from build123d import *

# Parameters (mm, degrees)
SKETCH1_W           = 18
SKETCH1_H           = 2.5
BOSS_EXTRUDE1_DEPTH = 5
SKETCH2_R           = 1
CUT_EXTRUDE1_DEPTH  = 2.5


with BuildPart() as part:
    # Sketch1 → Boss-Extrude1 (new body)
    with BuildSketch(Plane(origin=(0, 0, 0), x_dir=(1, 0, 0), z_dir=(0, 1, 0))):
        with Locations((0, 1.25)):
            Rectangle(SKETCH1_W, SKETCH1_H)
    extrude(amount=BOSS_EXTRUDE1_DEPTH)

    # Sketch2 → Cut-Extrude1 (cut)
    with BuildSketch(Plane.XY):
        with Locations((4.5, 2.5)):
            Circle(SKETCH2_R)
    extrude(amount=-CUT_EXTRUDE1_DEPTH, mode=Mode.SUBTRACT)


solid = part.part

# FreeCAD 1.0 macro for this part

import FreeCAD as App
import Part
import Sketcher


def add_polygon(sketch, points):
    """Adds a closed chain of lines whose ends are joined by coincident constraints."""
    first, n = sketch.GeometryCount, len(points)
    for a, b in zip(points, points[1:] + points[:1]):
        sketch.addGeometry(Part.LineSegment(App.Vector(*a, 0), App.Vector(*b, 0)), False)
    for i in range(n):
        sketch.addConstraint(Sketcher.Constraint("Coincident", first + i, 2, first + (i + 1) % n, 1))

doc = App.newDocument("Part")
body = doc.addObject("PartDesign::Body", "Body")

# Sketch on XZ plane
sketch1 = doc.addObject("Sketcher::SketchObject", "Sketch")
body.addObject(sketch1)
sketch1.AttachmentSupport = (doc.XZ_Plane, [""])
sketch1.MapMode = "FlatFace"
add_polygon(sketch1, [(-9, -2.5), (-9, 0), (9, 0), (9, -2.5)])  # lines 0-3
sketch1.addConstraint(Sketcher.Constraint("Vertical", 0))
sketch1.addConstraint(Sketcher.Constraint("Horizontal", 1))
sketch1.addConstraint(Sketcher.Constraint("Vertical", 2))
sketch1.addConstraint(Sketcher.Constraint("Horizontal", 3))
sketch1.addConstraint(Sketcher.Constraint("Symmetric", 0, 2, 1, 2, -1, 1))
sketch1.addConstraint(Sketcher.Constraint("DistanceX", 1, 1, 1, 2, 18.0))
sketch1.addConstraint(Sketcher.Constraint("DistanceY", 0, 1, 0, 2, 2.5))
pad1 = doc.addObject("PartDesign::Pad", "Pad")
body.addObject(pad1)
pad1.Profile = sketch1
pad1.Length = 5
pad1.Reversed = True

# Sketch on XY plane
sketch2 = doc.addObject("Sketcher::SketchObject", "Sketch001")
body.addObject(sketch2)
sketch2.AttachmentSupport = (doc.XY_Plane, [""])
sketch2.MapMode = "FlatFace"
sketch2.addGeometry(Part.Circle(App.Vector(4.5, 2.5, 0), App.Vector(0, 0, 1), 1), False)
sketch2.addConstraint(Sketcher.Constraint("Diameter", 0, 2.0))
sketch2.addConstraint(Sketcher.Constraint("DistanceX", -1, 1, 0, 3, 4.5))
sketch2.addConstraint(Sketcher.Constraint("DistanceY", -1, 1, 0, 3, 2.5))
pocket1 = doc.addObject("PartDesign::Pocket", "Pocket")
body.addObject(pocket1)
pocket1.Profile = sketch2
pocket1.Length = 2.5

doc.recompute()
